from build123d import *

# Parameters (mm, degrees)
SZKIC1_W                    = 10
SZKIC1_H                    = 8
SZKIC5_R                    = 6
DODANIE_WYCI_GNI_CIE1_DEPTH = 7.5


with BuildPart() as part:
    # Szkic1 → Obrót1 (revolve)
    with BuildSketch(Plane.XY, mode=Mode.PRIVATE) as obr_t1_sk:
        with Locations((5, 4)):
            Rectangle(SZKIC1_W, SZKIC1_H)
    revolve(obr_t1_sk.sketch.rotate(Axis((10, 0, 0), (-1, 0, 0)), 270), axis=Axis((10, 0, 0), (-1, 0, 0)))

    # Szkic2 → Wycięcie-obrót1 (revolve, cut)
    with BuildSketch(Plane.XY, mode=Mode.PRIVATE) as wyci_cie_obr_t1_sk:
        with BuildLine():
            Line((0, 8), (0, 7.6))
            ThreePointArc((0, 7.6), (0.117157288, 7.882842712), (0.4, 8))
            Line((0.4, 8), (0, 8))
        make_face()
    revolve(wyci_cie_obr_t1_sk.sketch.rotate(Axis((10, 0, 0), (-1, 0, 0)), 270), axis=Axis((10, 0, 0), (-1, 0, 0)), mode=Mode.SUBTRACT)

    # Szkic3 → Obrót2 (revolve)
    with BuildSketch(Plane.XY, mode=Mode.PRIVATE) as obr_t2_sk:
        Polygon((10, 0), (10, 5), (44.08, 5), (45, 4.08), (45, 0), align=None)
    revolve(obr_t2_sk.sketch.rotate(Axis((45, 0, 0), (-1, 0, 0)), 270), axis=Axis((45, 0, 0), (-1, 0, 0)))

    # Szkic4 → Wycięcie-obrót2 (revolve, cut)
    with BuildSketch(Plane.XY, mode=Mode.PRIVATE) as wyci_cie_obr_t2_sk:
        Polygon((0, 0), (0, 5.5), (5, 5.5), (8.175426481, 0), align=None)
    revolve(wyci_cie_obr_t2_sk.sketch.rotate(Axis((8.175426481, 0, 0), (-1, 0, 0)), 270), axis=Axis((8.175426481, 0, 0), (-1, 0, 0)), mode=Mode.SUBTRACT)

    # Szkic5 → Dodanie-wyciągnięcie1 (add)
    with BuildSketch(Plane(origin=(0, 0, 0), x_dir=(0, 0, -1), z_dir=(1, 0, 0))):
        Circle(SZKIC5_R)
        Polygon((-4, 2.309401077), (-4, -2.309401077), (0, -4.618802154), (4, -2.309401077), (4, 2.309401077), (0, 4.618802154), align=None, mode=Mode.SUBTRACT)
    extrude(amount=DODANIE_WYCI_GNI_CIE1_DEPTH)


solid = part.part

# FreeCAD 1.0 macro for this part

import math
import FreeCAD as App
import Part
import Sketcher
Q = App.Units.Quantity


def add_polygon(sketch, points):
    """Adds a closed chain of lines whose ends are joined by coincident constraints."""
    first, n = sketch.GeometryCount, len(points)
    for a, b in zip(points, points[1:] + points[:1]):
        sketch.addGeometry(Part.LineSegment(App.Vector(*a, 0), App.Vector(*b, 0)), False)
    for i in range(n):
        sketch.addConstraint(Sketcher.Constraint("Coincident", first + i, 2, first + (i + 1) % n, 1))

doc = App.newDocument("Part")
params = doc.addObject("Spreadsheet::Sheet", "Params")
for row, (alias, value) in enumerate([
    ("sketch1_width", "10 mm"),
    ("sketch1_height", "8 mm"),
    ("revolution_angle", "360 deg"),
    ("sketch2_radius", "0.4 mm"),
    ("groove_angle", "360 deg"),
    ("sketch3_width", "35 mm"),
    ("sketch3_height", "5 mm"),
    ("sketch3_width2", "34.08 mm"),
    ("revolution2_angle", "360 deg"),
    ("sketch4_width", "5 mm"),
    ("sketch4_height", "5.5 mm"),
    ("groove2_angle", "360 deg"),
    ("sketch5_diameter", "12 mm"),
    ("pad1_length", "7.5 mm"),
], start=1):
    params.set(f"A{row}", alias)
    params.set(f"B{row}", "=" + value)
    params.setAlias(f"B{row}", alias)

body = doc.addObject("PartDesign::Body", "Body")

sketch1 = body.newObject("Sketcher::SketchObject", "Sketch")
sketch1.AttachmentSupport = (doc.getObject("XY_Plane"), [""])
sketch1.MapMode = "FlatFace"
add_polygon(sketch1, [(0, 8), (0, 0), (10, 0), (10, 8)])
sketch1.addConstraint([
    Sketcher.Constraint("Vertical", 0),
    Sketcher.Constraint("Horizontal", 1),
    Sketcher.Constraint("Vertical", 2),
    Sketcher.Constraint("Horizontal", 3),
    Sketcher.Constraint("Coincident", 0, 2, -1, 1),
    Sketcher.Constraint("DistanceX", 1, 1, 1, 2, Q("10 mm")),
    Sketcher.Constraint("DistanceY", 0, 2, 0, 1, Q("8 mm")),
])
sketch1.setExpression("Constraints[9]", "Params.sketch1_width")
sketch1.setExpression("Constraints[10]", "Params.sketch1_height")
revolution = body.newObject("PartDesign::Revolution", "Revolution")
revolution.Profile = sketch1
revolution.ReferenceAxis = (sketch1, ["H_Axis"])
revolution.setExpression("Angle", "Params.revolution_angle")

sketch2 = body.newObject("Sketcher::SketchObject", "Sketch001")
sketch2.AttachmentSupport = (doc.getObject("XY_Plane"), [""])
sketch2.MapMode = "FlatFace"
sketch2.addGeometry([
    Part.LineSegment(App.Vector(0, 8, 0), App.Vector(0, 7.6, 0)),
    Part.ArcOfCircle(Part.Circle(App.Vector(0.4, 7.6, 0), App.Vector(0, 0, 1), 0.4), math.radians(90), math.radians(180)),
    Part.LineSegment(App.Vector(0.4, 8, 0), App.Vector(0, 8, 0)),
], False)
sketch2.addConstraint([
    Sketcher.Constraint("Tangent", 0, 2, 1, 2),
    Sketcher.Constraint("Tangent", 1, 1, 2, 1),
    Sketcher.Constraint("Coincident", 2, 2, 0, 1),
    Sketcher.Constraint("Vertical", 0),
    Sketcher.Constraint("Horizontal", 2),
    Sketcher.Constraint("PointOnObject", 0, 2, -2),
    Sketcher.Constraint("Radius", 1, Q("0.4 mm")),
    Sketcher.Constraint("DistanceY", -1, 1, 1, 1, Q("8 mm")),
])
sketch2.setExpression("Constraints[6]", "Params.sketch2_radius")
groove = body.newObject("PartDesign::Groove", "Groove")
groove.Profile = sketch2
groove.ReferenceAxis = (sketch2, ["H_Axis"])
groove.setExpression("Angle", "Params.groove_angle")

sketch3 = body.newObject("Sketcher::SketchObject", "Sketch002")
sketch3.AttachmentSupport = (doc.getObject("XY_Plane"), [""])
sketch3.MapMode = "FlatFace"
add_polygon(sketch3, [(10, 5), (10, 0), (45, 0), (45, 4.1), (44.1, 5)])
sketch3.addConstraint([
    Sketcher.Constraint("Vertical", 0),
    Sketcher.Constraint("Horizontal", 1),
    Sketcher.Constraint("Vertical", 2),
    Sketcher.Constraint("Horizontal", 4),
    Sketcher.Constraint("PointOnObject", 0, 2, -1),
    Sketcher.Constraint("DistanceX", 1, 1, 1, 2, Q("35 mm")),
    Sketcher.Constraint("DistanceY", 0, 2, 0, 1, Q("5 mm")),
    Sketcher.Constraint("Angle", 3, Q("135 deg")),
    Sketcher.Constraint("DistanceX", -1, 1, 0, 2, Q("10 mm")),
    Sketcher.Constraint("DistanceX", 4, 2, 4, 1, Q("34.08 mm")),
])
sketch3.setExpression("Constraints[10]", "Params.sketch3_width")
sketch3.setExpression("Constraints[11]", "Params.sketch3_height")
sketch3.setExpression("Constraints[14]", "Params.sketch3_width2")
revolution2 = body.newObject("PartDesign::Revolution", "Revolution001")
revolution2.Profile = sketch3
revolution2.ReferenceAxis = (sketch3, ["H_Axis"])
revolution2.setExpression("Angle", "Params.revolution2_angle")

sketch4 = body.newObject("Sketcher::SketchObject", "Sketch003")
sketch4.AttachmentSupport = (doc.getObject("XY_Plane"), [""])
sketch4.MapMode = "FlatFace"
add_polygon(sketch4, [(0, 6), (0, 0), (8, 0), (5, 6)])
sketch4.addConstraint([
    Sketcher.Constraint("Vertical", 0),
    Sketcher.Constraint("Horizontal", 1),
    Sketcher.Constraint("Horizontal", 3),
    Sketcher.Constraint("Coincident", 0, 2, -1, 1),
    Sketcher.Constraint("DistanceX", 3, 2, 3, 1, Q("5 mm")),
    Sketcher.Constraint("Angle", 2, Q("120 deg")),
    Sketcher.Constraint("DistanceY", 0, 2, 0, 1, Q("5.5 mm")),
])
sketch4.setExpression("Constraints[8]", "Params.sketch4_width")
sketch4.setExpression("Constraints[10]", "Params.sketch4_height")
groove2 = body.newObject("PartDesign::Groove", "Groove001")
groove2.Profile = sketch4
groove2.ReferenceAxis = (sketch4, ["H_Axis"])
groove2.setExpression("Angle", "Params.groove2_angle")

sketch5 = body.newObject("Sketcher::SketchObject", "Sketch004")
sketch5.AttachmentSupport = (doc.getObject("YZ_Plane"), [""])
sketch5.MapMode = "FlatFace"
sketch5.addGeometry(Part.Circle(App.Vector(0, 0, 0), App.Vector(0, 0, 1), 6), False)
add_polygon(sketch5, [(-2.3, 4), (2.3, 4), (4.6, 0), (2.3, -4), (-2.3, -4), (-4.6, 0)])
sketch5.addConstraint([
    Sketcher.Constraint("Horizontal", 1),
    Sketcher.Constraint("Horizontal", 4),
    Sketcher.Constraint("Coincident", 0, 3, -1, 1),
    Sketcher.Constraint("Symmetric", 1, 2, 4, 2, -1, 1),
    Sketcher.Constraint("Symmetric", 2, 2, 5, 2, -1, 1),
    Sketcher.Constraint("PointOnObject", 2, 2, -1),
    Sketcher.Constraint("Parallel", 3, 6),
    Sketcher.Constraint("Vertical", 1, 2, 3, 2),
    Sketcher.Constraint("Diameter", 0, Q("12 mm")),
    Sketcher.Constraint("Angle", 2, Q("-60 deg")),
    Sketcher.Constraint("DistanceY", -1, 1, 1, 2, Q("4 mm")),
    Sketcher.Constraint("DistanceX", -1, 1, 1, 2, Q("2.309401 mm")),
])
sketch5.setExpression("Constraints[14]", "Params.sketch5_diameter")
pad1 = body.newObject("PartDesign::Pad", "Pad")
pad1.Profile = sketch5
pad1.setExpression("Length", "Params.pad1_length")

doc.recompute()
